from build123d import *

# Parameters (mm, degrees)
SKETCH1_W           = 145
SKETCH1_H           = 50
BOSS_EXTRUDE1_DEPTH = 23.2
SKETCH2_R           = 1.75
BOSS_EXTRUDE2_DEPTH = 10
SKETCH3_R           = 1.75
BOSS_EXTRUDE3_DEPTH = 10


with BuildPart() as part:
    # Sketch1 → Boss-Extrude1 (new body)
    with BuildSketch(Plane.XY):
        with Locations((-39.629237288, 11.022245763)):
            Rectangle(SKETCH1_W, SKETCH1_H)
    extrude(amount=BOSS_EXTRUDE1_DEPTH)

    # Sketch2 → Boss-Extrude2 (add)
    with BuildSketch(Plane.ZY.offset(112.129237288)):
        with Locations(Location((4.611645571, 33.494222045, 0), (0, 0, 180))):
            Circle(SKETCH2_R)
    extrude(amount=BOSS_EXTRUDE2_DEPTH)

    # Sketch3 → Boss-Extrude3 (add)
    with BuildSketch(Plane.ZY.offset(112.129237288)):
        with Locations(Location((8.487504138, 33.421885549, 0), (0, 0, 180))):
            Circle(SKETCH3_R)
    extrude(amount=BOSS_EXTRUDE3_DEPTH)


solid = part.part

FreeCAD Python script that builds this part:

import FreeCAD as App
import Part
import Sketcher
from FreeCAD import Vector
Q = App.Units.Quantity

doc = App.newDocument("Part")
body = doc.addObject("PartDesign::Body", "Body")

# Sketch on XY plane
sketch1 = doc.addObject("Sketcher::SketchObject", "Sketch")
body.addObject(sketch1)
sketch1.AttachmentSupport = (doc.XY_Plane, [""])
sketch1.MapMode = "FlatFace"
sketch1.addGeometry(Part.LineSegment(Vector(-112, 36, 0), Vector(-112, -14, 0)), False)
sketch1.addGeometry(Part.LineSegment(Vector(-112, -14, 0), Vector(33, -14, 0)), False)
sketch1.addGeometry(Part.LineSegment(Vector(33, -14, 0), Vector(33, 36, 0)), False)
sketch1.addGeometry(Part.LineSegment(Vector(33, 36, 0), Vector(-112, 36, 0)), False)
sketch1.addConstraint(Sketcher.Constraint("Coincident", 0, 2, 1, 1))
sketch1.addConstraint(Sketcher.Constraint("Coincident", 1, 2, 2, 1))
sketch1.addConstraint(Sketcher.Constraint("Coincident", 2, 2, 3, 1))
sketch1.addConstraint(Sketcher.Constraint("Coincident", 3, 2, 0, 1))
sketch1.addConstraint(Sketcher.Constraint("Vertical", 0))
sketch1.addConstraint(Sketcher.Constraint("Horizontal", 1))
sketch1.addConstraint(Sketcher.Constraint("Vertical", 2))
sketch1.addConstraint(Sketcher.Constraint("Horizontal", 3))
sketch1.addConstraint(Sketcher.Constraint("DistanceX", 1, 1, 1, 2, Q("145 mm")))
sketch1.addConstraint(Sketcher.Constraint("DistanceY", 0, 2, 0, 1, Q("50 mm")))
sketch1.addConstraint(Sketcher.Constraint("DistanceX", 0, 2, -1, 1, Q("112.129237 mm")))
sketch1.addConstraint(Sketcher.Constraint("DistanceY", 0, 2, -1, 1, Q("13.977754 mm")))
pad1 = doc.addObject("PartDesign::Pad", "Pad")
body.addObject(pad1)
pad1.Profile = sketch1
pad1.Length = 23.2

# Sketch on YZ plane
sketch2 = doc.addObject("Sketcher::SketchObject", "Sketch001")
body.addObject(sketch2)
sketch2.AttachmentSupport = (doc.YZ_Plane, [""])
sketch2.MapMode = "FlatFace"
sketch2.AttachmentOffset = App.Placement(Vector(0, 0, -112.129237), App.Rotation())
sketch2.addGeometry(Part.Circle(Vector(33.5, 4.6, 0), Vector(0, 0, 1), 1.8), False)
sketch2.addConstraint(Sketcher.Constraint("Diameter", 0, Q("3.5 mm")))
sketch2.addConstraint(Sketcher.Constraint("DistanceX", -1, 1, 0, 3, Q("33.494222 mm")))
sketch2.addConstraint(Sketcher.Constraint("DistanceY", -1, 1, 0, 3, Q("4.611646 mm")))
pad2 = doc.addObject("PartDesign::Pad", "Pad001")
body.addObject(pad2)
pad2.Profile = sketch2
pad2.Length = 10
pad2.Reversed = True

# Sketch on YZ plane
sketch3 = doc.addObject("Sketcher::SketchObject", "Sketch002")
body.addObject(sketch3)
sketch3.AttachmentSupport = (doc.YZ_Plane, [""])
sketch3.MapMode = "FlatFace"
sketch3.AttachmentOffset = App.Placement(Vector(0, 0, -112.129237), App.Rotation())
sketch3.addGeometry(Part.Circle(Vector(33.4, 8.5, 0), Vector(0, 0, 1), 1.8), False)
sketch3.addConstraint(Sketcher.Constraint("Diameter", 0, Q("3.5 mm")))
sketch3.addConstraint(Sketcher.Constraint("DistanceX", -1, 1, 0, 3, Q("33.421886 mm")))
sketch3.addConstraint(Sketcher.Constraint("DistanceY", -1, 1, 0, 3, Q("8.487504 mm")))
pad3 = doc.addObject("PartDesign::Pad", "Pad002")
body.addObject(pad3)
pad3.Profile = sketch3
pad3.Length = 10
pad3.Reversed = True

doc.recompute()
